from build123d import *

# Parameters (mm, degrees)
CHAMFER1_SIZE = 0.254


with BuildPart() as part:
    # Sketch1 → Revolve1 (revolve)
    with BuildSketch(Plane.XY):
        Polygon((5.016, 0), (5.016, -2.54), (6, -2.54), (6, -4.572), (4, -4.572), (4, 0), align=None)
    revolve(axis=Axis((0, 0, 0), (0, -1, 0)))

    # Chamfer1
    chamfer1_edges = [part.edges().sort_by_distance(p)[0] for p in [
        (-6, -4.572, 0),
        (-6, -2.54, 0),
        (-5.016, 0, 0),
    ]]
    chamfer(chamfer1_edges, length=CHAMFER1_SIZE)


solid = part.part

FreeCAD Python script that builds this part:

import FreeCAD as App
import Part
import Sketcher

V = App.Vector
Q = App.Units.Quantity


def edges_at(feature, points):
    """Names of the edges that pass closest to the given points."""
    edges = feature.Shape.Edges
    near = lambda p: min(range(len(edges)), key=lambda i: edges[i].distToShape(Part.Vertex(*p))[0])
    return sorted({f"Edge{near(p) + 1}" for p in points})


def add_polygon(sketch, points):
    """Adds a closed chain of lines whose ends are joined by coincident constraints."""
    first, n = sketch.GeometryCount, len(points)
    for a, b in zip(points, points[1:] + points[:1]):
        sketch.addGeometry(Part.LineSegment(App.Vector(*a, 0), App.Vector(*b, 0)), False)
    for i in range(n):
        sketch.addConstraint(Sketcher.Constraint("Coincident", first + i, 2, first + (i + 1) % n, 1))

doc = App.newDocument("Part")
params = doc.addObject("Spreadsheet::Sheet", "Params")
for row, (alias, value) in enumerate([
    ("sketch1_height", "0.1 in"),
    ("sketch1_width", "0.04 in"),
    ("sketch1_height2", "0.18 in"),
    ("revolution_angle", "360 deg"),
    ("chamfer_size", "0.01 in"),
], start=1):
    params.set(f"A{row}", alias)
    params.set(f"B{row}", "=" + value)
    params.setAlias(f"B{row}", alias)

body = doc.addObject("PartDesign::Body", "Body")

sketch1 = body.newObject("Sketcher::SketchObject", "Sketch")
sketch1.AttachmentSupport = (doc.getObject("XY_Plane"), [""])
sketch1.MapMode = "FlatFace"
add_polygon(sketch1, [(5.016, -2.54), (5.016, 0), (4, 0), (4, -4.572), (6, -4.572), (6, -2.54)])
sketch1.addConstraint([
    Sketcher.Constraint("Vertical", 0),
    Sketcher.Constraint("Horizontal", 1),
    Sketcher.Constraint("Vertical", 2),
    Sketcher.Constraint("Horizontal", 3),
    Sketcher.Constraint("Vertical", 4),
    Sketcher.Constraint("Horizontal", 5),
    Sketcher.Constraint("PointOnObject", 0, 2, -1),
    Sketcher.Constraint("DistanceY", 0, 1, 0, 2, Q("0.1 in")),
    Sketcher.Constraint("DistanceX", 1, 2, 1, 1, Q("0.04 in")),
    Sketcher.Constraint("DistanceY", 2, 2, 2, 1, Q("0.18 in")),
    Sketcher.Constraint("DistanceX", 3, 1, 3, 2, Q("2 mm")),
    Sketcher.Constraint("DistanceX", -1, 1, 0, 2, Q("5.016 mm")),
])
sketch1.setExpression("Constraints[13]", "Params.sketch1_height")
sketch1.setExpression("Constraints[14]", "Params.sketch1_width")
sketch1.setExpression("Constraints[15]", "Params.sketch1_height2")
revolution = body.newObject("PartDesign::Revolution", "Revolution")
revolution.Profile = sketch1
revolution.ReferenceAxis = (sketch1, ["V_Axis"])
revolution.setExpression("Angle", "Params.revolution_angle")
doc.recompute()

chamfer = body.newObject("PartDesign::Chamfer", "Chamfer")
chamfer.Base = (revolution, edges_at(revolution, [(-6, -4.572, 0), (-6, -2.54, 0), (-5.016, 0, 0)]))
chamfer.setExpression("Size", "Params.chamfer_size")

doc.recompute()
